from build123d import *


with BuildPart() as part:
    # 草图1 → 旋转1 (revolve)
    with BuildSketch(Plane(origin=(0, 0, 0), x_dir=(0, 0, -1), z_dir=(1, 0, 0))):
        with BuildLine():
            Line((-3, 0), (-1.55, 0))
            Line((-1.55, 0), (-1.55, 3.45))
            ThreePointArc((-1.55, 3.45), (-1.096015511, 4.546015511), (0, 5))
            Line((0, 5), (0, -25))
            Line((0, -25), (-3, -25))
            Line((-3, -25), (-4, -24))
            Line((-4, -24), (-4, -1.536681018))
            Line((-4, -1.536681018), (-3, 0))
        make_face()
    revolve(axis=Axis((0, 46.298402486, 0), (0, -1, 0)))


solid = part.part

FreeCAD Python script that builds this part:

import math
import FreeCAD as App
import Part
import Sketcher
Q = App.Units.Quantity

doc = App.newDocument("Part")
body = doc.addObject("PartDesign::Body", "Body")

# Sketch on YZ plane
sketch1 = doc.addObject("Sketcher::SketchObject", "Sketch")
body.addObject(sketch1)
sketch1.AttachmentSupport = (doc.YZ_Plane, [""])
sketch1.MapMode = "FlatFace"
sketch1.addGeometry([
    Part.LineSegment(App.Vector(0, 1.6, 0), App.Vector(0, 3, 0)),  # 0
    Part.LineSegment(App.Vector(0, 3, 0), App.Vector(-1.5, 4, 0)),  # 1
    Part.LineSegment(App.Vector(-1.5, 4, 0), App.Vector(-24, 4, 0)),  # 2
    Part.LineSegment(App.Vector(-24, 4, 0), App.Vector(-25, 3, 0)),  # 3
    Part.LineSegment(App.Vector(-25, 3, 0), App.Vector(-25, 0, 0)),  # 4
    Part.LineSegment(App.Vector(-25, 0, 0), App.Vector(5, 0, 0)),  # 5
    Part.ArcOfCircle(Part.Circle(App.Vector(3.5, 0, 0), App.Vector(0, 0, 1), 1.5), math.radians(0), math.radians(90)),  # 6
    Part.LineSegment(App.Vector(3.5, 1.6, 0), App.Vector(0, 1.6, 0)),  # 7
], False)
sketch1.addConstraint([
    Sketcher.Constraint("Coincident", 0, 2, 1, 1),
    Sketcher.Constraint("Coincident", 1, 2, 2, 1),
    Sketcher.Constraint("Coincident", 2, 2, 3, 1),
    Sketcher.Constraint("Coincident", 3, 2, 4, 1),
    Sketcher.Constraint("Coincident", 4, 2, 5, 1),
    Sketcher.Constraint("Coincident", 5, 2, 6, 1),
    Sketcher.Constraint("Tangent", 6, 2, 7, 1),
    Sketcher.Constraint("Coincident", 7, 2, 0, 1),
    Sketcher.Constraint("Vertical", 0),
    Sketcher.Constraint("Horizontal", 2),
    Sketcher.Constraint("Vertical", 4),
    Sketcher.Constraint("Horizontal", 5),
    Sketcher.Constraint("Horizontal", 7),
    Sketcher.Constraint("PointOnObject", 6, 3, -1),
    Sketcher.Constraint("PointOnObject", 0, 2, -2),
    Sketcher.Constraint("PointOnObject", 4, 2, -1),
    Sketcher.Constraint("Horizontal", 0, 2, 3, 2),
    Sketcher.Constraint("DistanceX", 5, 1, 5, 2, Q("30 mm")),
    Sketcher.Constraint("DistanceY", 4, 2, 4, 1, Q("3 mm")),
    Sketcher.Constraint("Angle", 3, Q("-135 deg")),
    Sketcher.Constraint("Radius", 6, Q("1.55 mm")),
    Sketcher.Constraint("DistanceY", -1, 1, 1, 2, Q("4 mm")),
    Sketcher.Constraint("DistanceX", 2, 2, -1, 1, Q("24 mm")),
    Sketcher.Constraint("DistanceX", 2, 2, 2, 1, Q("22.463319 mm")),
])
revolution = doc.addObject("PartDesign::Revolution", "Revolution")
body.addObject(revolution)
revolution.Profile = sketch1
revolution.ReferenceAxis = (sketch1, ["H_Axis"])
revolution.Angle = 360

doc.recompute()
